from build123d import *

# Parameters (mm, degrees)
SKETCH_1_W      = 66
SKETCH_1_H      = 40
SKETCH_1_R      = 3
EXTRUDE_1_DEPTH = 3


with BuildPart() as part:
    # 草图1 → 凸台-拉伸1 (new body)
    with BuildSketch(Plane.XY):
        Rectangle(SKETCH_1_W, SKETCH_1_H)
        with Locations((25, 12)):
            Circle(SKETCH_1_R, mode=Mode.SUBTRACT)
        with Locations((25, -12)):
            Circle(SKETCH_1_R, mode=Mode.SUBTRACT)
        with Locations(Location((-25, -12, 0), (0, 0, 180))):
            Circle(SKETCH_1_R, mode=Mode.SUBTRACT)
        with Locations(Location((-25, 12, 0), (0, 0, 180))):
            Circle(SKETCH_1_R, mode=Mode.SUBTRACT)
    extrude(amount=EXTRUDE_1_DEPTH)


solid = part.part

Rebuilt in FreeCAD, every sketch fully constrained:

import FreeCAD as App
import Part
import Sketcher
Q = App.Units.Quantity


def add_polygon(sketch, points):
    """Adds a closed chain of lines whose ends are joined by coincident constraints."""
    first, n = sketch.GeometryCount, len(points)
    for a, b in zip(points, points[1:] + points[:1]):
        sketch.addGeometry(Part.LineSegment(App.Vector(*a, 0), App.Vector(*b, 0)), False)
    for i in range(n):
        sketch.addConstraint(Sketcher.Constraint("Coincident", first + i, 2, first + (i + 1) % n, 1))

doc = App.newDocument("Part")
body = doc.addObject("PartDesign::Body", "Body")

sketch1 = doc.addObject("Sketcher::SketchObject", "Sketch")
body.addObject(sketch1)
sketch1.AttachmentSupport = (doc.XY_Plane, [""])
sketch1.MapMode = "FlatFace"
add_polygon(sketch1, [(-33, 20), (-33, -20), (33, -20), (33, 20)])
sketch1.addGeometry(Part.Circle(App.Vector(-25, -12, 0), App.Vector(0, 0, 1), 3), False)
sketch1.addGeometry(Part.Circle(App.Vector(25, -12, 0), App.Vector(0, 0, 1), 3), False)
sketch1.addGeometry(Part.Circle(App.Vector(-25, 12, 0), App.Vector(0, 0, 1), 3), False)
sketch1.addGeometry(Part.Circle(App.Vector(25, 12, 0), App.Vector(0, 0, 1), 3), False)
sketch1.addConstraint(Sketcher.Constraint("Vertical", 0))
sketch1.addConstraint(Sketcher.Constraint("Horizontal", 1))
sketch1.addConstraint(Sketcher.Constraint("Vertical", 2))
sketch1.addConstraint(Sketcher.Constraint("Horizontal", 3))
sketch1.addConstraint(Sketcher.Constraint("Equal", 4, 5))
sketch1.addConstraint(Sketcher.Constraint("Equal", 5, 6))
sketch1.addConstraint(Sketcher.Constraint("Equal", 6, 7))
sketch1.addConstraint(Sketcher.Constraint("Symmetric", 5, 3, 6, 3, -1, 1))
sketch1.addConstraint(Sketcher.Constraint("Symmetric", 4, 3, 7, 3, -1, 1))
sketch1.addConstraint(Sketcher.Constraint("Symmetric", 0, 2, 2, 2, -1, 1))
sketch1.addConstraint(Sketcher.Constraint("Symmetric", 4, 3, 5, 3, -2))
sketch1.addConstraint(Sketcher.Constraint("Diameter", 4, Q("6 mm")))
sketch1.addConstraint(Sketcher.Constraint("DistanceX", 1, 1, 1, 2, Q("66 mm")))
sketch1.addConstraint(Sketcher.Constraint("DistanceY", 0, 2, 0, 1, Q("40 mm")))
sketch1.addConstraint(Sketcher.Constraint("DistanceX", 4, 3, -1, 1, Q("25 mm")))
sketch1.addConstraint(Sketcher.Constraint("DistanceY", 4, 3, -1, 1, Q("12 mm")))
pad1 = doc.addObject("PartDesign::Pad", "Pad")
body.addObject(pad1)
pad1.Profile = sketch1
pad1.Length = 3

doc.recompute()
